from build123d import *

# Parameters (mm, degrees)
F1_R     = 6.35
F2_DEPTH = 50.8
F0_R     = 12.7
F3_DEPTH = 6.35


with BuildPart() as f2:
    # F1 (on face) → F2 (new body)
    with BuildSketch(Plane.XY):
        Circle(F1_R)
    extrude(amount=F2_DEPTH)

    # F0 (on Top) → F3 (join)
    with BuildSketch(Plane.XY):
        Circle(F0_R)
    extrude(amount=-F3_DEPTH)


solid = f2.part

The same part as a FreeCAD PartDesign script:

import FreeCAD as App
import Part
import Sketcher
from FreeCAD import Vector
Q = App.Units.Quantity

doc = App.newDocument("Part")
body = doc.addObject("PartDesign::Body", "Body")

sketch1 = doc.addObject("Sketcher::SketchObject", "Sketch")
body.addObject(sketch1)
sketch1.AttachmentSupport = (doc.XY_Plane, [""])
sketch1.MapMode = "FlatFace"
sketch1.addGeometry(Part.Circle(Vector(0, 0, 0), Vector(0, 0, 1), 6), False)
sketch1.addConstraint(Sketcher.Constraint("Coincident", 0, 3, -1, 1))
sketch1.addConstraint(Sketcher.Constraint("Diameter", 0, Q("0.5 in")))
pad1 = doc.addObject("PartDesign::Pad", "Pad")
body.addObject(pad1)
pad1.Profile = sketch1
pad1.Length = Q("2 in")

sketch2 = doc.addObject("Sketcher::SketchObject", "Sketch001")
body.addObject(sketch2)
sketch2.AttachmentSupport = (doc.XY_Plane, [""])
sketch2.MapMode = "FlatFace"
sketch2.addGeometry(Part.Circle(Vector(0, 0, 0), Vector(0, 0, 1), 13), False)
sketch2.addConstraint(Sketcher.Constraint("Coincident", 0, 3, -1, 1))
sketch2.addConstraint(Sketcher.Constraint("Diameter", 0, Q("1 in")))
pad2 = doc.addObject("PartDesign::Pad", "Pad001")
body.addObject(pad2)
pad2.Profile = sketch2
pad2.Length = Q("0.25 in")
pad2.Reversed = True

doc.recompute()
